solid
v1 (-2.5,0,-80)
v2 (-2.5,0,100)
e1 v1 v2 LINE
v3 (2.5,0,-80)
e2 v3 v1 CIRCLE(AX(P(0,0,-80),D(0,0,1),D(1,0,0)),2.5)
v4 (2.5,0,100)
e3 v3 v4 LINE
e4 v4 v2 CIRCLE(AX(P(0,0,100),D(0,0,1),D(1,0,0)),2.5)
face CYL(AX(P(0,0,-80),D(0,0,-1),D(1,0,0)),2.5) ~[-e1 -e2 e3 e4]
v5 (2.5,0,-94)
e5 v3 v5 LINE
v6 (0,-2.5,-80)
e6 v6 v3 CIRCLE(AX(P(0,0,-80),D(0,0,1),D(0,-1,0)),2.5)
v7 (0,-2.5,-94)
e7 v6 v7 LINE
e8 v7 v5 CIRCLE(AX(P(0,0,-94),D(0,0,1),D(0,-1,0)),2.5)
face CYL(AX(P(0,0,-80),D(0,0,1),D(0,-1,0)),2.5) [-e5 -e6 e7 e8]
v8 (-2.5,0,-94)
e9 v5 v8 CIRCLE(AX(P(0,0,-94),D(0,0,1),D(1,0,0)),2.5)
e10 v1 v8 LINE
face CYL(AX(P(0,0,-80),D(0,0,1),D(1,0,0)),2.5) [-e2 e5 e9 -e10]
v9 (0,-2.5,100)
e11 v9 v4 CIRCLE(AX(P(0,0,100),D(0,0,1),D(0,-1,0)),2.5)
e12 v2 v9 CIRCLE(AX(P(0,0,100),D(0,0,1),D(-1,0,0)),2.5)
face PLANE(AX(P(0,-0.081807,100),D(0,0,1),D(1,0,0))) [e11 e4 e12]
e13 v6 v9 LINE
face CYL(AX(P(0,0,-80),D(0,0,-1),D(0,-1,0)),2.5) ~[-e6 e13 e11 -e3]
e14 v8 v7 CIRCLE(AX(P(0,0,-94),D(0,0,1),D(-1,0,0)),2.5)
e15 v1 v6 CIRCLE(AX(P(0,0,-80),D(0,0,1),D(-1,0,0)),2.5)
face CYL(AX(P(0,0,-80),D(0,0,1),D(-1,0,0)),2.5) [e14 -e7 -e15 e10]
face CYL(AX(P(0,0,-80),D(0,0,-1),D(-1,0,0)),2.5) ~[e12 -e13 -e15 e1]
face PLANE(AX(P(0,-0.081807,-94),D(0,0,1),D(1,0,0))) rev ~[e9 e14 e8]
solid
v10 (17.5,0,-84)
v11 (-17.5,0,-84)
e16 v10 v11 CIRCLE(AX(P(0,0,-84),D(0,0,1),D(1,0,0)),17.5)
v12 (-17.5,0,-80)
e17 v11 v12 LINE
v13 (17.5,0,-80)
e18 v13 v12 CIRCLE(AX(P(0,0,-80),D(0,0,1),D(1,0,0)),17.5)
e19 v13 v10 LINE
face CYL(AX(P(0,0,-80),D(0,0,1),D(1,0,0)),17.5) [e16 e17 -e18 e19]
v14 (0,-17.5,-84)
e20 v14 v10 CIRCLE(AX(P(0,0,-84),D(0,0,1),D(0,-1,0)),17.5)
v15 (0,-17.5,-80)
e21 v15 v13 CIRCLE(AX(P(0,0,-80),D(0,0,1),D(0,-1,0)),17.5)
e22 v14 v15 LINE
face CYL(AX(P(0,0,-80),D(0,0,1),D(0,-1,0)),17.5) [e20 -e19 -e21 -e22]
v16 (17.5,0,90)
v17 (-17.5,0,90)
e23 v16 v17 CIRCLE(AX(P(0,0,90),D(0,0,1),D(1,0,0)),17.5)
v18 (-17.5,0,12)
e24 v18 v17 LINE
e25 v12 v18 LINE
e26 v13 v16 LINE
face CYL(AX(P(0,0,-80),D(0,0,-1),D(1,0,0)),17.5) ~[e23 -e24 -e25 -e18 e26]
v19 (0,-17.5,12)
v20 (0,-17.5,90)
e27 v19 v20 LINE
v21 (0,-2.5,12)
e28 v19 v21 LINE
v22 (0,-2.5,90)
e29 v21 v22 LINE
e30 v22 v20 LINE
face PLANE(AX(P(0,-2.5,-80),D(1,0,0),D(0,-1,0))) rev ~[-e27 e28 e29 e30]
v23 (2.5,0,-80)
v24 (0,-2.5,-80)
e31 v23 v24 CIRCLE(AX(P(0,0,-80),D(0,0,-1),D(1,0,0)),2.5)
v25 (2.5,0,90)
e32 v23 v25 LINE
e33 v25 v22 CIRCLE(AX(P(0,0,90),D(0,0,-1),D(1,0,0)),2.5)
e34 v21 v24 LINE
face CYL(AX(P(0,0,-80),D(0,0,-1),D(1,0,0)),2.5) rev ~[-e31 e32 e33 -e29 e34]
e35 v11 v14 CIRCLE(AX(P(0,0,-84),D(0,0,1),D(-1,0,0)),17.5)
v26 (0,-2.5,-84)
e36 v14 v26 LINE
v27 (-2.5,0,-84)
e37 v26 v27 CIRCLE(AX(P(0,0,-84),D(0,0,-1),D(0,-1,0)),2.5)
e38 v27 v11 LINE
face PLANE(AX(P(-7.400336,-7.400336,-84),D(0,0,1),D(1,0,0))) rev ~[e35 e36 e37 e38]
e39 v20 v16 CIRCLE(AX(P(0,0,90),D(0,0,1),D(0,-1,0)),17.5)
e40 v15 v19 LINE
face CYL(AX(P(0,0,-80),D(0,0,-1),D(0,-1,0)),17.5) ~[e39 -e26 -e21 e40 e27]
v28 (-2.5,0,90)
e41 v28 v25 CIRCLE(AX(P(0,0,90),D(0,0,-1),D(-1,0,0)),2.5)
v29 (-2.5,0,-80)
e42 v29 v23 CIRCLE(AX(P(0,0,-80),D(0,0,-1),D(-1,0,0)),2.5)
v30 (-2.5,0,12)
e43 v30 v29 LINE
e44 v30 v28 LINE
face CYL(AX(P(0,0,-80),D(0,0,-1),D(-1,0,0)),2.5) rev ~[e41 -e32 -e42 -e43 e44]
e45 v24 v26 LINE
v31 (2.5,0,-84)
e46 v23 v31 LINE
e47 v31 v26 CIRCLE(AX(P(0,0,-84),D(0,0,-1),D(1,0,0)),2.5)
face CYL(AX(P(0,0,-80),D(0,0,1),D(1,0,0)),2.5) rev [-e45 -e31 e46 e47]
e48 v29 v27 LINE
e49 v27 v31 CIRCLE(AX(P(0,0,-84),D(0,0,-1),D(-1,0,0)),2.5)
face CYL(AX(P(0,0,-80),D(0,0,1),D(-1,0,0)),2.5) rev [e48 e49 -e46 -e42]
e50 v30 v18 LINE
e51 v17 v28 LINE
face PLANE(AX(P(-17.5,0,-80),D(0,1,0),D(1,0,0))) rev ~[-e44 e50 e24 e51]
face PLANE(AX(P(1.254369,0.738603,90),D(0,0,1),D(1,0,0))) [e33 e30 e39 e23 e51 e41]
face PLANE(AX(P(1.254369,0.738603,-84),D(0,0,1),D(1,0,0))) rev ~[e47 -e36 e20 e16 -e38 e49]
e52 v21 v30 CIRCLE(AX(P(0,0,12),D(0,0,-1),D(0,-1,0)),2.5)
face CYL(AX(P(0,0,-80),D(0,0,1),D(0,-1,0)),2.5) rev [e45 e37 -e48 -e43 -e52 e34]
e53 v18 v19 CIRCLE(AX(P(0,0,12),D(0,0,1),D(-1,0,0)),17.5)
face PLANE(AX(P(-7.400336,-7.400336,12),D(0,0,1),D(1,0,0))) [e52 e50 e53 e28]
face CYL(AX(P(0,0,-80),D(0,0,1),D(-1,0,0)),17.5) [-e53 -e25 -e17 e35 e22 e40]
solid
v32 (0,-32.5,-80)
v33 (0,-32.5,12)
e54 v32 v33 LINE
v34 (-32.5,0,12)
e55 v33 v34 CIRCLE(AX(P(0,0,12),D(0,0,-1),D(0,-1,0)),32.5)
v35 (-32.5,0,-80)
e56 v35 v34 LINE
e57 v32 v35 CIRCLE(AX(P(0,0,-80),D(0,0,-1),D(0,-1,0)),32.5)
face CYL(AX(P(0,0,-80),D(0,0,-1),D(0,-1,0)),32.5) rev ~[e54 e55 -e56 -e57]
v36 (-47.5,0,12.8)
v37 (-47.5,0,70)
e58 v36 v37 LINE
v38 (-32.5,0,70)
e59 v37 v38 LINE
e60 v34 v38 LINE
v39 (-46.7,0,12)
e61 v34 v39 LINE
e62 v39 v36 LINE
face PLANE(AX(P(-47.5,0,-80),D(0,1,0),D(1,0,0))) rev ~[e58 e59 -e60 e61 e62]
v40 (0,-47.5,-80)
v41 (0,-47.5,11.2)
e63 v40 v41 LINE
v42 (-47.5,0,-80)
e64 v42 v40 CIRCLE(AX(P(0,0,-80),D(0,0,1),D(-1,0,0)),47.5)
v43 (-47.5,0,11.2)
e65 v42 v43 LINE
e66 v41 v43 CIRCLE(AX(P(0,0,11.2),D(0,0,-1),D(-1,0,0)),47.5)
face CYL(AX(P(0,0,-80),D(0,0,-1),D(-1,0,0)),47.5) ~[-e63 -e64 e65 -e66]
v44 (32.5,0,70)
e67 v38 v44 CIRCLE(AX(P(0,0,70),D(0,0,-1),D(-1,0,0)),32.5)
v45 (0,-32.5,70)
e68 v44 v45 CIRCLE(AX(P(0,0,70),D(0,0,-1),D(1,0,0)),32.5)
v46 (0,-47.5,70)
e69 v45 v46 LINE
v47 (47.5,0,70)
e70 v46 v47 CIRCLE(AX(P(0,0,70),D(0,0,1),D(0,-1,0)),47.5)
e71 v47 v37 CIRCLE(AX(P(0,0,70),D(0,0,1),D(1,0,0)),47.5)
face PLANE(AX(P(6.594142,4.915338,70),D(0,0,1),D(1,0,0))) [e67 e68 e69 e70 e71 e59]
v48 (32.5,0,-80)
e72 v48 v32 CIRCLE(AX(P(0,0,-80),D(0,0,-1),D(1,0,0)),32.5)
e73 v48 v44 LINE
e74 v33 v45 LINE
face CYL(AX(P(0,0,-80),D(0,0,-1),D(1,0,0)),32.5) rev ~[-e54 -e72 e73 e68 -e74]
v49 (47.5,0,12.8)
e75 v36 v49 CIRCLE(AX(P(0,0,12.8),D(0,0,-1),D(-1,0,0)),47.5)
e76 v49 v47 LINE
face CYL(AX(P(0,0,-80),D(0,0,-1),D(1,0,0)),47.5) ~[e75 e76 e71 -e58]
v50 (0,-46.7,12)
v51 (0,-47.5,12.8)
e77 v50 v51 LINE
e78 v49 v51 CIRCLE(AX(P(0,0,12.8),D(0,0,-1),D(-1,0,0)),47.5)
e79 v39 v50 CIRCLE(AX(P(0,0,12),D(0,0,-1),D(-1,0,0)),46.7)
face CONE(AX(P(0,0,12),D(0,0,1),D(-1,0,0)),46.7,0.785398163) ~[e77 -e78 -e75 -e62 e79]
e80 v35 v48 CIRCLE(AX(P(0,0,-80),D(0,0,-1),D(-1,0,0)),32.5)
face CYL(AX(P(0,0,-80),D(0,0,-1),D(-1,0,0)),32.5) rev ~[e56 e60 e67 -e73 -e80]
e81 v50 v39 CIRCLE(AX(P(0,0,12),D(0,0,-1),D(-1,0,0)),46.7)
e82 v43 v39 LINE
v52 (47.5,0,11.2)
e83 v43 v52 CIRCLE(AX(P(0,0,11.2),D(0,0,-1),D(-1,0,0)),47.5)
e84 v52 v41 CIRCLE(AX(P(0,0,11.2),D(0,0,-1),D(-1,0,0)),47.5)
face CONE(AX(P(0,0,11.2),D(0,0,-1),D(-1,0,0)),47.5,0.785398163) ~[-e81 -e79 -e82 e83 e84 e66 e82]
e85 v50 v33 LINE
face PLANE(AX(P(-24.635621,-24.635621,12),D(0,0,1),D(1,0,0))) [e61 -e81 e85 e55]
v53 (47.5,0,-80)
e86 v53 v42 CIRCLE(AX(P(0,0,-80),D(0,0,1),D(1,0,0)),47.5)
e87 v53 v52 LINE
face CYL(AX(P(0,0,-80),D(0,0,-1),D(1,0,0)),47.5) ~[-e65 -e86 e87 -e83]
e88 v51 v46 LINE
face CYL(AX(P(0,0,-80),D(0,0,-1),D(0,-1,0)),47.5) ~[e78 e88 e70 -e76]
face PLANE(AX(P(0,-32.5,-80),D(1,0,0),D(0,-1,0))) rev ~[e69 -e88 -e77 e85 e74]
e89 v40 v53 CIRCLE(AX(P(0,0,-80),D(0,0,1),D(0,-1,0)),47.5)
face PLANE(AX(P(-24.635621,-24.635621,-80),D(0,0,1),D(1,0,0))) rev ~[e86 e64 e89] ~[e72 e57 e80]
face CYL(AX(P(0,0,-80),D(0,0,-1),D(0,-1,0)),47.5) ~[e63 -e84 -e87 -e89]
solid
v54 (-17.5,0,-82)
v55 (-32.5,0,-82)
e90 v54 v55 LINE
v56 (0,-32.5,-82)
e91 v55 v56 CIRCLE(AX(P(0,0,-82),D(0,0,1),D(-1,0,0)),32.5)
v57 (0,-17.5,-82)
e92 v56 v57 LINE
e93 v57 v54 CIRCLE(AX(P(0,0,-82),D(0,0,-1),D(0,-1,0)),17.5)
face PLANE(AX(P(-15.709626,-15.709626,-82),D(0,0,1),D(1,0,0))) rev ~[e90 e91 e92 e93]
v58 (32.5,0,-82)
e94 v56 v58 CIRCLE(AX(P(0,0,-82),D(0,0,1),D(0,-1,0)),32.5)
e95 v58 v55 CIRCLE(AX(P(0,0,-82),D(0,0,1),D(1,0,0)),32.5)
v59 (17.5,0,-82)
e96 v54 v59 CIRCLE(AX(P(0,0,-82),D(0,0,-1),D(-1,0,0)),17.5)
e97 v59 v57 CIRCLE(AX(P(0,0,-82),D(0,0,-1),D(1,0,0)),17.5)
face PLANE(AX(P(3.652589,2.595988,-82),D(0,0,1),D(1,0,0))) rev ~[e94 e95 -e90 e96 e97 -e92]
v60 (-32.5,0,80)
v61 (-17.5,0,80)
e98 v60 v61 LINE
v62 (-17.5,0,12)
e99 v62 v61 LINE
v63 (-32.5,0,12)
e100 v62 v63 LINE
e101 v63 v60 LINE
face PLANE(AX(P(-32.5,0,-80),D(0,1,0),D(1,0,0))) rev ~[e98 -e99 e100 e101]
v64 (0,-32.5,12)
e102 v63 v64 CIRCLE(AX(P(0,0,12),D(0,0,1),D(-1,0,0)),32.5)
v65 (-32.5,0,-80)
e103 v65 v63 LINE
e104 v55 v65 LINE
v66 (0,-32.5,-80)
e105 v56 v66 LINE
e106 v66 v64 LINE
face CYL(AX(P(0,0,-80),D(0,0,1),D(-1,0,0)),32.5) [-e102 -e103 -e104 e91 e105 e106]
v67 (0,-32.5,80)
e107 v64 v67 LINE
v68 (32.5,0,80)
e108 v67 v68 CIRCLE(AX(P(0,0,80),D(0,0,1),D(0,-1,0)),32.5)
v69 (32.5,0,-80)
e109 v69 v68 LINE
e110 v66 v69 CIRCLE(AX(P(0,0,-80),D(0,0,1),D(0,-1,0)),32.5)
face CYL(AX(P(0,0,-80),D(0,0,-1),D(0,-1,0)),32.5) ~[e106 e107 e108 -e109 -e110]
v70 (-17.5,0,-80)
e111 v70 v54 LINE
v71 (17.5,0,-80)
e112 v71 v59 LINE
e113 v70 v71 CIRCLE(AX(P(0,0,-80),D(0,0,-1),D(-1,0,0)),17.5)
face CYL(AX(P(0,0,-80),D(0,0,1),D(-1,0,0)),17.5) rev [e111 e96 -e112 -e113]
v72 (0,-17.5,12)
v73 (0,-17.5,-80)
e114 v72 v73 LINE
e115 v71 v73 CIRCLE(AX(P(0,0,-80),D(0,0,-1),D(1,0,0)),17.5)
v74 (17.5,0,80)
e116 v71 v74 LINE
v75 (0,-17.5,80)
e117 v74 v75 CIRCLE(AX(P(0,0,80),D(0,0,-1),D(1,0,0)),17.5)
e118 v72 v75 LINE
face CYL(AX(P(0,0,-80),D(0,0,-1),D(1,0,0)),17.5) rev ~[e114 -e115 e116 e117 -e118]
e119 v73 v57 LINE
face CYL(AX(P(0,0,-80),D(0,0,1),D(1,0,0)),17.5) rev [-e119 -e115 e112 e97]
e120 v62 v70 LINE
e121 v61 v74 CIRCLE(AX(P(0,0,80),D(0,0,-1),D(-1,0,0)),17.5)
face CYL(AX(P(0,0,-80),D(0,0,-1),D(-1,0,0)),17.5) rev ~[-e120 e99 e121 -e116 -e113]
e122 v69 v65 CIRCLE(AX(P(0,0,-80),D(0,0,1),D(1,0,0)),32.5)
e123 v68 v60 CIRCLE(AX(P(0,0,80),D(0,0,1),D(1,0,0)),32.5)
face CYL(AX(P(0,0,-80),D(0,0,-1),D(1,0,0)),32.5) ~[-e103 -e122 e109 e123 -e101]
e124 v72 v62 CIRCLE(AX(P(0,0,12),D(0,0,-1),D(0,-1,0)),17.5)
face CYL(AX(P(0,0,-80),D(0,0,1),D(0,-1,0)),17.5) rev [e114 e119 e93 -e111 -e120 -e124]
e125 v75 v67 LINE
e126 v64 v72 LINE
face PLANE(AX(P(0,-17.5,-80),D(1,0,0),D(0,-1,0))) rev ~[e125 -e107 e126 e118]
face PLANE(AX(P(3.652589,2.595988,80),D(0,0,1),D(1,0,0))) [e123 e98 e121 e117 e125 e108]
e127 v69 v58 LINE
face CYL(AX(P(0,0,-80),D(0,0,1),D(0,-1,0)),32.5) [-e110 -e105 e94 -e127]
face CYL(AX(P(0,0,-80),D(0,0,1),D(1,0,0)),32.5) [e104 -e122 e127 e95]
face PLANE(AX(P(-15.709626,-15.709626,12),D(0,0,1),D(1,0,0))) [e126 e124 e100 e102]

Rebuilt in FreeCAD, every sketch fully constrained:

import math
import FreeCAD as App
import Part
import Sketcher

V = App.Vector


def add_polygon(sketch, points):
    """Adds a closed chain of lines whose ends are joined by coincident constraints."""
    first, n = sketch.GeometryCount, len(points)
    for a, b in zip(points, points[1:] + points[:1]):
        sketch.addGeometry(Part.LineSegment(App.Vector(*a, 0), App.Vector(*b, 0)), False)
    for i in range(n):
        sketch.addConstraint(Sketcher.Constraint("Coincident", first + i, 2, first + (i + 1) % n, 1))

doc = App.newDocument("Part")
body = doc.addObject("PartDesign::Body", "Body")

sketch1 = body.newObject("Sketcher::SketchObject", "Sketch")
sketch1.AttachmentSupport = (doc.getObject("XY_Plane"), [""])
sketch1.MapMode = "FlatFace"
sketch1.AttachmentOffset = App.Placement(V(0, 0, -80), App.Rotation())
sketch1.addGeometry([
    Part.ArcOfCircle(Part.Circle(V(0, 0, 0), V(0, 0, 1), 48), math.radians(-90), math.radians(0)),
    Part.ArcOfCircle(Part.Circle(V(0, 0, 0), V(0, 0, 1), 48), math.radians(0), math.radians(180)),
    Part.LineSegment(V(-48, 0, 0), V(-32, 0, 0)),
    Part.ArcOfCircle(Part.Circle(V(0, 0, 0), V(0, 0, 1), 32), math.radians(0), math.radians(180)),
    Part.ArcOfCircle(Part.Circle(V(0, 0, 0), V(0, 0, 1), 32), math.radians(-90), math.radians(0)),
    Part.LineSegment(V(0, -32, 0), V(0, -48, 0)),
], False)
sketch1.addConstraint([
    Sketcher.Constraint("Tangent", 0, 2, 1, 1),
    Sketcher.Constraint("Coincident", 1, 2, 2, 1),
    Sketcher.Constraint("Coincident", 2, 2, 3, 2),
    Sketcher.Constraint("Tangent", 3, 1, 4, 2),
    Sketcher.Constraint("Coincident", 4, 1, 5, 1),
    Sketcher.Constraint("Coincident", 5, 2, 0, 1),
    Sketcher.Constraint("Horizontal", 2),
    Sketcher.Constraint("Vertical", 5),
    Sketcher.Constraint("Coincident", 0, 3, -1, 1),
    Sketcher.Constraint("Coincident", 3, 3, -1, 1),
    Sketcher.Constraint("Equal", 0, 1),
    Sketcher.Constraint("Equal", 3, 4),
    Sketcher.Constraint("PointOnObject", 0, 2, -1),
    Sketcher.Constraint("PointOnObject", 1, 2, -1),
    Sketcher.Constraint("PointOnObject", 3, 1, -1),
    Sketcher.Constraint("PointOnObject", 4, 1, -2),
    Sketcher.Constraint("Radius", 0, 47.5),
    Sketcher.Constraint("Radius", 3, 32.5),
])
pad1 = body.newObject("PartDesign::Pad", "Pad")
pad1.Profile = sketch1
pad1.Length = 150

sketch2 = body.newObject("Sketcher::SketchObject", "Sketch001")
sketch2.AttachmentSupport = (doc.getObject("XY_Plane"), [""])
sketch2.MapMode = "FlatFace"
sketch2.AttachmentOffset = App.Placement(V(0, 0, -80), App.Rotation())
sketch2.addGeometry([
    Part.LineSegment(V(-32, 0, 0), V(-48, 0, 0)),
    Part.ArcOfCircle(Part.Circle(V(0, 0, 0), V(0, 0, 1), 48), math.radians(180), math.radians(270)),
    Part.LineSegment(V(0, -48, 0), V(0, -32, 0)),
    Part.ArcOfCircle(Part.Circle(V(0, 0, 0), V(0, 0, 1), 32), math.radians(180), math.radians(270)),
], False)
sketch2.addConstraint([
    Sketcher.Constraint("Coincident", 0, 2, 1, 1),
    Sketcher.Constraint("Coincident", 1, 2, 2, 1),
    Sketcher.Constraint("Coincident", 2, 2, 3, 2),
    Sketcher.Constraint("Coincident", 3, 1, 0, 1),
    Sketcher.Constraint("Horizontal", 0),
    Sketcher.Constraint("Vertical", 2),
    Sketcher.Constraint("Coincident", 1, 3, -1, 1),
    Sketcher.Constraint("Coincident", 3, 3, -1, 1),
    Sketcher.Constraint("PointOnObject", 0, 2, -1),
    Sketcher.Constraint("PointOnObject", 1, 2, -2),
    Sketcher.Constraint("Radius", 1, 47.5),
    Sketcher.Constraint("Radius", 3, 32.5),
])
pad2 = body.newObject("PartDesign::Pad", "Pad001")
pad2.Profile = sketch2
pad2.Length = 92

sketch3 = body.newObject("Sketcher::SketchObject", "Sketch002")
sketch3.AttachmentSupport = (doc.getObject("XZ_Plane"), [""])
sketch3.MapMode = "FlatFace"
add_polygon(sketch3, [(-46.7, 12), (-47.5, 12.8), (-47.5, 11.2)])
sketch3.addConstraint([
    Sketcher.Constraint("Vertical", 1),
    Sketcher.Constraint("Perpendicular", 0, 2),
    Sketcher.Constraint("Equal", 0, 2),
    Sketcher.Constraint("DistanceY", 1, 2, 1, 1, 1.6),
    Sketcher.Constraint("DistanceY", -1, 1, 2, 2, 12.0),
    Sketcher.Constraint("DistanceX", 0, 2, -1, 1, 47.5),
])
groove = body.newObject("PartDesign::Groove", "Groove")
groove.Profile = sketch3
groove.ReferenceAxis = (sketch3, ["V_Axis"])
groove.Angle = 360
body2 = doc.addObject("PartDesign::Body", "Body001")

sketch4 = body2.newObject("Sketcher::SketchObject", "Sketch003")
sketch4.AttachmentSupport = (doc.getObject("XY_Plane001"), [""])
sketch4.MapMode = "FlatFace"
sketch4.AttachmentOffset = App.Placement(V(0, 0, -80), App.Rotation())
sketch4.addGeometry([
    Part.LineSegment(V(-18, 0, 0), V(-32, 0, 0)),
    Part.ArcOfCircle(Part.Circle(V(0, 0, 0), V(0, 0, 1), 32), math.radians(180), math.radians(270)),
    Part.LineSegment(V(0, -32, 0), V(0, -18, 0)),
    Part.ArcOfCircle(Part.Circle(V(0, 0, 0), V(0, 0, 1), 18), math.radians(180), math.radians(270)),
], False)
sketch4.addConstraint([
    Sketcher.Constraint("Coincident", 0, 2, 1, 1),
    Sketcher.Constraint("Coincident", 1, 2, 2, 1),
    Sketcher.Constraint("Coincident", 2, 2, 3, 2),
    Sketcher.Constraint("Coincident", 3, 1, 0, 1),
    Sketcher.Constraint("Horizontal", 0),
    Sketcher.Constraint("Vertical", 2),
    Sketcher.Constraint("Coincident", 1, 3, -1, 1),
    Sketcher.Constraint("Coincident", 3, 3, -1, 1),
    Sketcher.Constraint("PointOnObject", 0, 2, -1),
    Sketcher.Constraint("PointOnObject", 1, 2, -2),
    Sketcher.Constraint("Radius", 1, 32.5),
    Sketcher.Constraint("Radius", 3, 17.5),
])
pad3 = body2.newObject("PartDesign::Pad", "Pad002")
pad3.Profile = sketch4
pad3.Type = "TwoLengths"
pad3.Length = 92
pad3.Length2 = 2

sketch5 = body2.newObject("Sketcher::SketchObject", "Sketch004")
sketch5.AttachmentSupport = (doc.getObject("XY_Plane001"), [""])
sketch5.MapMode = "FlatFace"
sketch5.AttachmentOffset = App.Placement(V(0, 0, -80), App.Rotation())
sketch5.addGeometry([
    Part.ArcOfCircle(Part.Circle(V(0, 0, 0), V(0, 0, 1), 32), math.radians(0), math.radians(180)),
    Part.LineSegment(V(-32, 0, 0), V(-18, 0, 0)),
    Part.ArcOfCircle(Part.Circle(V(0, 0, 0), V(0, 0, 1), 18), math.radians(0), math.radians(180)),
    Part.ArcOfCircle(Part.Circle(V(0, 0, 0), V(0, 0, 1), 18), math.radians(-90), math.radians(0)),
    Part.LineSegment(V(0, -18, 0), V(0, -32, 0)),
    Part.ArcOfCircle(Part.Circle(V(0, 0, 0), V(0, 0, 1), 32), math.radians(-90), math.radians(0)),
], False)
sketch5.addConstraint([
    Sketcher.Constraint("Coincident", 0, 2, 1, 1),
    Sketcher.Constraint("Coincident", 1, 2, 2, 2),
    Sketcher.Constraint("Tangent", 2, 1, 3, 2),
    Sketcher.Constraint("Coincident", 3, 1, 4, 1),
    Sketcher.Constraint("Coincident", 4, 2, 5, 1),
    Sketcher.Constraint("Tangent", 5, 2, 0, 1),
    Sketcher.Constraint("Horizontal", 1),
    Sketcher.Constraint("Vertical", 4),
    Sketcher.Constraint("Coincident", 0, 3, -1, 1),
    Sketcher.Constraint("Coincident", 2, 3, -1, 1),
    Sketcher.Constraint("Equal", 2, 3),
    Sketcher.Constraint("Equal", 0, 5),
    Sketcher.Constraint("PointOnObject", 0, 2, -1),
    Sketcher.Constraint("PointOnObject", 2, 1, -1),
    Sketcher.Constraint("PointOnObject", 3, 1, -2),
    Sketcher.Constraint("PointOnObject", 5, 2, -1),
    Sketcher.Constraint("Radius", 0, 32.5),
    Sketcher.Constraint("Radius", 2, 17.5),
])
pad4 = body2.newObject("PartDesign::Pad", "Pad003")
pad4.Profile = sketch5
pad4.Type = "TwoLengths"
pad4.Length = 160
pad4.Length2 = 2
body3 = doc.addObject("PartDesign::Body", "Body002")

sketch6 = body3.newObject("Sketcher::SketchObject", "Sketch005")
sketch6.AttachmentSupport = (doc.getObject("XY_Plane002"), [""])
sketch6.MapMode = "FlatFace"
sketch6.AttachmentOffset = App.Placement(V(0, 0, -80), App.Rotation())
sketch6.addGeometry([
    Part.LineSegment(V(-2.5, 0, 0), V(-17.5, 0, 0)),
    Part.ArcOfCircle(Part.Circle(V(0, 0, 0), V(0, 0, 1), 17.5), math.radians(180), math.radians(270)),
    Part.LineSegment(V(0, -17.5, 0), V(0, -2.5, 0)),
    Part.ArcOfCircle(Part.Circle(V(0, 0, 0), V(0, 0, 1), 2.5), math.radians(180), math.radians(270)),
], False)
sketch6.addConstraint([
    Sketcher.Constraint("Coincident", 0, 2, 1, 1),
    Sketcher.Constraint("Coincident", 1, 2, 2, 1),
    Sketcher.Constraint("Coincident", 2, 2, 3, 2),
    Sketcher.Constraint("Coincident", 3, 1, 0, 1),
    Sketcher.Constraint("Horizontal", 0),
    Sketcher.Constraint("Vertical", 2),
    Sketcher.Constraint("Coincident", 1, 3, -1, 1),
    Sketcher.Constraint("Coincident", 3, 3, -1, 1),
    Sketcher.Constraint("PointOnObject", 0, 2, -1),
    Sketcher.Constraint("PointOnObject", 1, 2, -2),
    Sketcher.Constraint("Radius", 1, 17.5),
    Sketcher.Constraint("Radius", 3, 2.5),
])
pad5 = body3.newObject("PartDesign::Pad", "Pad004")
pad5.Profile = sketch6
pad5.Type = "TwoLengths"
pad5.Length = 92
pad5.Length2 = 4

sketch7 = body3.newObject("Sketcher::SketchObject", "Sketch006")
sketch7.AttachmentSupport = (doc.getObject("XY_Plane002"), [""])
sketch7.MapMode = "FlatFace"
sketch7.AttachmentOffset = App.Placement(V(0, 0, -80), App.Rotation())
sketch7.addGeometry([
    Part.ArcOfCircle(Part.Circle(V(0, 0, 0), V(0, 0, 1), 17.5), math.radians(0), math.radians(180)),
    Part.LineSegment(V(-17.5, 0, 0), V(-2.5, 0, 0)),
    Part.ArcOfCircle(Part.Circle(V(0, 0, 0), V(0, 0, 1), 2.5), math.radians(0), math.radians(180)),
    Part.ArcOfCircle(Part.Circle(V(0, 0, 0), V(0, 0, 1), 2.5), math.radians(-90), math.radians(0)),
    Part.LineSegment(V(0, -2.5, 0), V(0, -17.5, 0)),
    Part.ArcOfCircle(Part.Circle(V(0, 0, 0), V(0, 0, 1), 17.5), math.radians(-90), math.radians(0)),
], False)
sketch7.addConstraint([
    Sketcher.Constraint("Coincident", 0, 2, 1, 1),
    Sketcher.Constraint("Coincident", 1, 2, 2, 2),
    Sketcher.Constraint("Tangent", 2, 1, 3, 2),
    Sketcher.Constraint("Coincident", 3, 1, 4, 1),
    Sketcher.Constraint("Coincident", 4, 2, 5, 1),
    Sketcher.Constraint("Tangent", 5, 2, 0, 1),
    Sketcher.Constraint("Horizontal", 1),
    Sketcher.Constraint("Vertical", 4),
    Sketcher.Constraint("Coincident", 0, 3, -1, 1),
    Sketcher.Constraint("Coincident", 2, 3, -1, 1),
    Sketcher.Constraint("Equal", 2, 3),
    Sketcher.Constraint("Equal", 0, 5),
    Sketcher.Constraint("PointOnObject", 0, 2, -1),
    Sketcher.Constraint("PointOnObject", 2, 1, -1),
    Sketcher.Constraint("PointOnObject", 3, 1, -2),
    Sketcher.Constraint("PointOnObject", 5, 2, -1),
    Sketcher.Constraint("Radius", 0, 17.5),
    Sketcher.Constraint("Radius", 2, 2.5),
])
pad6 = body3.newObject("PartDesign::Pad", "Pad005")
pad6.Profile = sketch7
pad6.Type = "TwoLengths"
pad6.Length = 170
pad6.Length2 = 4
body4 = doc.addObject("PartDesign::Body", "Body003")

sketch8 = body4.newObject("Sketcher::SketchObject", "Sketch007")
sketch8.AttachmentSupport = (doc.getObject("XY_Plane003"), [""])
sketch8.MapMode = "FlatFace"
sketch8.AttachmentOffset = App.Placement(V(0, 0, -80), App.Rotation())
sketch8.addGeometry([
    Part.ArcOfCircle(Part.Circle(V(0, 0, 0), V(0, 0, 1), 2.5), math.radians(0), math.radians(180)),
    Part.ArcOfCircle(Part.Circle(V(0, 0, 0), V(0, 0, 1), 2.5), math.radians(180), math.radians(270)),
    Part.ArcOfCircle(Part.Circle(V(0, 0, 0), V(0, 0, 1), 2.5), math.radians(-90), math.radians(0)),
], False)
sketch8.addConstraint([
    Sketcher.Constraint("Tangent", 0, 2, 1, 1),
    Sketcher.Constraint("Tangent", 1, 2, 2, 1),
    Sketcher.Constraint("Tangent", 2, 2, 0, 1),
    Sketcher.Constraint("Coincident", 0, 3, -1, 1),
    Sketcher.Constraint("PointOnObject", 0, 2, -1),
    Sketcher.Constraint("PointOnObject", 1, 2, -2),
    Sketcher.Constraint("PointOnObject", 2, 2, -1),
    Sketcher.Constraint("Radius", 0, 2.5),
])
pad7 = body4.newObject("PartDesign::Pad", "Pad006")
pad7.Profile = sketch8
pad7.Type = "TwoLengths"
pad7.Length = 180
pad7.Length2 = 14

doc.recompute()
